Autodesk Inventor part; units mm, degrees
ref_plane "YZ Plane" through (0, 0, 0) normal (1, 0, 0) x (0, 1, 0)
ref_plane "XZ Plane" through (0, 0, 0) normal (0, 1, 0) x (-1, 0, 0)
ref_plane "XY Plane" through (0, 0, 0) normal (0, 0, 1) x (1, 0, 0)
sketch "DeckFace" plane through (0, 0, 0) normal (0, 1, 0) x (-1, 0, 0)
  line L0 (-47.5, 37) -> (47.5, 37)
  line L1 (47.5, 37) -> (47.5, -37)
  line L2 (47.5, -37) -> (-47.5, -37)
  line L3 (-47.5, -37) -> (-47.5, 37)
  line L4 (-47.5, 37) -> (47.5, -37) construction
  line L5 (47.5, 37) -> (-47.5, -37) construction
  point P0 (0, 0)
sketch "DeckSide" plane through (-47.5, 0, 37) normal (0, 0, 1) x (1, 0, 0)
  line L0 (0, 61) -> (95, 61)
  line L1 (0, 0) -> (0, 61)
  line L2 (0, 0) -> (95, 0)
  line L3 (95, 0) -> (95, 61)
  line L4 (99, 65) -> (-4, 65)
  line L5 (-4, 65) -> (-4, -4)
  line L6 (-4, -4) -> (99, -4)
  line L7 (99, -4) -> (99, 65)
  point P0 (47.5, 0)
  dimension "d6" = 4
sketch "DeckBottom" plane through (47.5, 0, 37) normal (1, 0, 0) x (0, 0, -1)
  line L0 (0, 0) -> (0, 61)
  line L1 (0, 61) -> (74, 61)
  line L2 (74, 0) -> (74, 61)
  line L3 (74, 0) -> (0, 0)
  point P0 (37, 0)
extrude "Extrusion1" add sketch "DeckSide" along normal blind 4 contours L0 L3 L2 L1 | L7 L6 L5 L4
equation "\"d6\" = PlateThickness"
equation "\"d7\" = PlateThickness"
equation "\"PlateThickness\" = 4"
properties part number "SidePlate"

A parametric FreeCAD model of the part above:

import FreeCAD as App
import Part
import Sketcher
Q = App.Units.Quantity


def add_polygon(sketch, points):
    """Adds a closed chain of lines whose ends are joined by coincident constraints."""
    first, n = sketch.GeometryCount, len(points)
    for a, b in zip(points, points[1:] + points[:1]):
        sketch.addGeometry(Part.LineSegment(App.Vector(*a, 0), App.Vector(*b, 0)), False)
    for i in range(n):
        sketch.addConstraint(Sketcher.Constraint("Coincident", first + i, 2, first + (i + 1) % n, 1))

doc = App.newDocument("Part")
params = doc.addObject("Spreadsheet::Sheet", "Params")
for row, (alias, value) in enumerate([
    ("sketch1_width", "103 mm"),
    ("sketch1_height", "69 mm"),
    ("pad1_length", "4 mm"),
], start=1):
    params.set(f"A{row}", alias)
    params.set(f"B{row}", "=" + value)
    params.setAlias(f"B{row}", alias)

body = doc.addObject("PartDesign::Body", "Body")

# Sketch on XY plane
sketch1 = body.newObject("Sketcher::SketchObject", "Sketch")
sketch1.AttachmentSupport = (doc.getObject("XY_Plane"), [""])
sketch1.MapMode = "FlatFace"
sketch1.AttachmentOffset = App.Placement(App.Vector(0, 0, 37), App.Rotation())
add_polygon(sketch1, [(52, -4), (52, 65), (-52, 65), (-52, -4)])  # lines 0-3
sketch1.addConstraint([
    Sketcher.Constraint("Vertical", 0),
    Sketcher.Constraint("Horizontal", 1),
    Sketcher.Constraint("Vertical", 2),
    Sketcher.Constraint("Horizontal", 3),
    Sketcher.Constraint("DistanceY", 2, 2, -1, 1, Q("4 mm")),
    Sketcher.Constraint("DistanceX", 1, 2, 1, 1, Q("103 mm")),
    Sketcher.Constraint("DistanceY", 0, 1, 0, 2, Q("69 mm")),
    Sketcher.Constraint("DistanceX", -1, 1, 0, 2, Q("51.5 mm")),
])
sketch1.setExpression("Constraints[9]", "Params.sketch1_width")
sketch1.setExpression("Constraints[10]", "Params.sketch1_height")
pad1 = body.newObject("PartDesign::Pad", "Pad")
pad1.Profile = sketch1
pad1.setExpression("Length", "Params.pad1_length")

doc.recompute()
